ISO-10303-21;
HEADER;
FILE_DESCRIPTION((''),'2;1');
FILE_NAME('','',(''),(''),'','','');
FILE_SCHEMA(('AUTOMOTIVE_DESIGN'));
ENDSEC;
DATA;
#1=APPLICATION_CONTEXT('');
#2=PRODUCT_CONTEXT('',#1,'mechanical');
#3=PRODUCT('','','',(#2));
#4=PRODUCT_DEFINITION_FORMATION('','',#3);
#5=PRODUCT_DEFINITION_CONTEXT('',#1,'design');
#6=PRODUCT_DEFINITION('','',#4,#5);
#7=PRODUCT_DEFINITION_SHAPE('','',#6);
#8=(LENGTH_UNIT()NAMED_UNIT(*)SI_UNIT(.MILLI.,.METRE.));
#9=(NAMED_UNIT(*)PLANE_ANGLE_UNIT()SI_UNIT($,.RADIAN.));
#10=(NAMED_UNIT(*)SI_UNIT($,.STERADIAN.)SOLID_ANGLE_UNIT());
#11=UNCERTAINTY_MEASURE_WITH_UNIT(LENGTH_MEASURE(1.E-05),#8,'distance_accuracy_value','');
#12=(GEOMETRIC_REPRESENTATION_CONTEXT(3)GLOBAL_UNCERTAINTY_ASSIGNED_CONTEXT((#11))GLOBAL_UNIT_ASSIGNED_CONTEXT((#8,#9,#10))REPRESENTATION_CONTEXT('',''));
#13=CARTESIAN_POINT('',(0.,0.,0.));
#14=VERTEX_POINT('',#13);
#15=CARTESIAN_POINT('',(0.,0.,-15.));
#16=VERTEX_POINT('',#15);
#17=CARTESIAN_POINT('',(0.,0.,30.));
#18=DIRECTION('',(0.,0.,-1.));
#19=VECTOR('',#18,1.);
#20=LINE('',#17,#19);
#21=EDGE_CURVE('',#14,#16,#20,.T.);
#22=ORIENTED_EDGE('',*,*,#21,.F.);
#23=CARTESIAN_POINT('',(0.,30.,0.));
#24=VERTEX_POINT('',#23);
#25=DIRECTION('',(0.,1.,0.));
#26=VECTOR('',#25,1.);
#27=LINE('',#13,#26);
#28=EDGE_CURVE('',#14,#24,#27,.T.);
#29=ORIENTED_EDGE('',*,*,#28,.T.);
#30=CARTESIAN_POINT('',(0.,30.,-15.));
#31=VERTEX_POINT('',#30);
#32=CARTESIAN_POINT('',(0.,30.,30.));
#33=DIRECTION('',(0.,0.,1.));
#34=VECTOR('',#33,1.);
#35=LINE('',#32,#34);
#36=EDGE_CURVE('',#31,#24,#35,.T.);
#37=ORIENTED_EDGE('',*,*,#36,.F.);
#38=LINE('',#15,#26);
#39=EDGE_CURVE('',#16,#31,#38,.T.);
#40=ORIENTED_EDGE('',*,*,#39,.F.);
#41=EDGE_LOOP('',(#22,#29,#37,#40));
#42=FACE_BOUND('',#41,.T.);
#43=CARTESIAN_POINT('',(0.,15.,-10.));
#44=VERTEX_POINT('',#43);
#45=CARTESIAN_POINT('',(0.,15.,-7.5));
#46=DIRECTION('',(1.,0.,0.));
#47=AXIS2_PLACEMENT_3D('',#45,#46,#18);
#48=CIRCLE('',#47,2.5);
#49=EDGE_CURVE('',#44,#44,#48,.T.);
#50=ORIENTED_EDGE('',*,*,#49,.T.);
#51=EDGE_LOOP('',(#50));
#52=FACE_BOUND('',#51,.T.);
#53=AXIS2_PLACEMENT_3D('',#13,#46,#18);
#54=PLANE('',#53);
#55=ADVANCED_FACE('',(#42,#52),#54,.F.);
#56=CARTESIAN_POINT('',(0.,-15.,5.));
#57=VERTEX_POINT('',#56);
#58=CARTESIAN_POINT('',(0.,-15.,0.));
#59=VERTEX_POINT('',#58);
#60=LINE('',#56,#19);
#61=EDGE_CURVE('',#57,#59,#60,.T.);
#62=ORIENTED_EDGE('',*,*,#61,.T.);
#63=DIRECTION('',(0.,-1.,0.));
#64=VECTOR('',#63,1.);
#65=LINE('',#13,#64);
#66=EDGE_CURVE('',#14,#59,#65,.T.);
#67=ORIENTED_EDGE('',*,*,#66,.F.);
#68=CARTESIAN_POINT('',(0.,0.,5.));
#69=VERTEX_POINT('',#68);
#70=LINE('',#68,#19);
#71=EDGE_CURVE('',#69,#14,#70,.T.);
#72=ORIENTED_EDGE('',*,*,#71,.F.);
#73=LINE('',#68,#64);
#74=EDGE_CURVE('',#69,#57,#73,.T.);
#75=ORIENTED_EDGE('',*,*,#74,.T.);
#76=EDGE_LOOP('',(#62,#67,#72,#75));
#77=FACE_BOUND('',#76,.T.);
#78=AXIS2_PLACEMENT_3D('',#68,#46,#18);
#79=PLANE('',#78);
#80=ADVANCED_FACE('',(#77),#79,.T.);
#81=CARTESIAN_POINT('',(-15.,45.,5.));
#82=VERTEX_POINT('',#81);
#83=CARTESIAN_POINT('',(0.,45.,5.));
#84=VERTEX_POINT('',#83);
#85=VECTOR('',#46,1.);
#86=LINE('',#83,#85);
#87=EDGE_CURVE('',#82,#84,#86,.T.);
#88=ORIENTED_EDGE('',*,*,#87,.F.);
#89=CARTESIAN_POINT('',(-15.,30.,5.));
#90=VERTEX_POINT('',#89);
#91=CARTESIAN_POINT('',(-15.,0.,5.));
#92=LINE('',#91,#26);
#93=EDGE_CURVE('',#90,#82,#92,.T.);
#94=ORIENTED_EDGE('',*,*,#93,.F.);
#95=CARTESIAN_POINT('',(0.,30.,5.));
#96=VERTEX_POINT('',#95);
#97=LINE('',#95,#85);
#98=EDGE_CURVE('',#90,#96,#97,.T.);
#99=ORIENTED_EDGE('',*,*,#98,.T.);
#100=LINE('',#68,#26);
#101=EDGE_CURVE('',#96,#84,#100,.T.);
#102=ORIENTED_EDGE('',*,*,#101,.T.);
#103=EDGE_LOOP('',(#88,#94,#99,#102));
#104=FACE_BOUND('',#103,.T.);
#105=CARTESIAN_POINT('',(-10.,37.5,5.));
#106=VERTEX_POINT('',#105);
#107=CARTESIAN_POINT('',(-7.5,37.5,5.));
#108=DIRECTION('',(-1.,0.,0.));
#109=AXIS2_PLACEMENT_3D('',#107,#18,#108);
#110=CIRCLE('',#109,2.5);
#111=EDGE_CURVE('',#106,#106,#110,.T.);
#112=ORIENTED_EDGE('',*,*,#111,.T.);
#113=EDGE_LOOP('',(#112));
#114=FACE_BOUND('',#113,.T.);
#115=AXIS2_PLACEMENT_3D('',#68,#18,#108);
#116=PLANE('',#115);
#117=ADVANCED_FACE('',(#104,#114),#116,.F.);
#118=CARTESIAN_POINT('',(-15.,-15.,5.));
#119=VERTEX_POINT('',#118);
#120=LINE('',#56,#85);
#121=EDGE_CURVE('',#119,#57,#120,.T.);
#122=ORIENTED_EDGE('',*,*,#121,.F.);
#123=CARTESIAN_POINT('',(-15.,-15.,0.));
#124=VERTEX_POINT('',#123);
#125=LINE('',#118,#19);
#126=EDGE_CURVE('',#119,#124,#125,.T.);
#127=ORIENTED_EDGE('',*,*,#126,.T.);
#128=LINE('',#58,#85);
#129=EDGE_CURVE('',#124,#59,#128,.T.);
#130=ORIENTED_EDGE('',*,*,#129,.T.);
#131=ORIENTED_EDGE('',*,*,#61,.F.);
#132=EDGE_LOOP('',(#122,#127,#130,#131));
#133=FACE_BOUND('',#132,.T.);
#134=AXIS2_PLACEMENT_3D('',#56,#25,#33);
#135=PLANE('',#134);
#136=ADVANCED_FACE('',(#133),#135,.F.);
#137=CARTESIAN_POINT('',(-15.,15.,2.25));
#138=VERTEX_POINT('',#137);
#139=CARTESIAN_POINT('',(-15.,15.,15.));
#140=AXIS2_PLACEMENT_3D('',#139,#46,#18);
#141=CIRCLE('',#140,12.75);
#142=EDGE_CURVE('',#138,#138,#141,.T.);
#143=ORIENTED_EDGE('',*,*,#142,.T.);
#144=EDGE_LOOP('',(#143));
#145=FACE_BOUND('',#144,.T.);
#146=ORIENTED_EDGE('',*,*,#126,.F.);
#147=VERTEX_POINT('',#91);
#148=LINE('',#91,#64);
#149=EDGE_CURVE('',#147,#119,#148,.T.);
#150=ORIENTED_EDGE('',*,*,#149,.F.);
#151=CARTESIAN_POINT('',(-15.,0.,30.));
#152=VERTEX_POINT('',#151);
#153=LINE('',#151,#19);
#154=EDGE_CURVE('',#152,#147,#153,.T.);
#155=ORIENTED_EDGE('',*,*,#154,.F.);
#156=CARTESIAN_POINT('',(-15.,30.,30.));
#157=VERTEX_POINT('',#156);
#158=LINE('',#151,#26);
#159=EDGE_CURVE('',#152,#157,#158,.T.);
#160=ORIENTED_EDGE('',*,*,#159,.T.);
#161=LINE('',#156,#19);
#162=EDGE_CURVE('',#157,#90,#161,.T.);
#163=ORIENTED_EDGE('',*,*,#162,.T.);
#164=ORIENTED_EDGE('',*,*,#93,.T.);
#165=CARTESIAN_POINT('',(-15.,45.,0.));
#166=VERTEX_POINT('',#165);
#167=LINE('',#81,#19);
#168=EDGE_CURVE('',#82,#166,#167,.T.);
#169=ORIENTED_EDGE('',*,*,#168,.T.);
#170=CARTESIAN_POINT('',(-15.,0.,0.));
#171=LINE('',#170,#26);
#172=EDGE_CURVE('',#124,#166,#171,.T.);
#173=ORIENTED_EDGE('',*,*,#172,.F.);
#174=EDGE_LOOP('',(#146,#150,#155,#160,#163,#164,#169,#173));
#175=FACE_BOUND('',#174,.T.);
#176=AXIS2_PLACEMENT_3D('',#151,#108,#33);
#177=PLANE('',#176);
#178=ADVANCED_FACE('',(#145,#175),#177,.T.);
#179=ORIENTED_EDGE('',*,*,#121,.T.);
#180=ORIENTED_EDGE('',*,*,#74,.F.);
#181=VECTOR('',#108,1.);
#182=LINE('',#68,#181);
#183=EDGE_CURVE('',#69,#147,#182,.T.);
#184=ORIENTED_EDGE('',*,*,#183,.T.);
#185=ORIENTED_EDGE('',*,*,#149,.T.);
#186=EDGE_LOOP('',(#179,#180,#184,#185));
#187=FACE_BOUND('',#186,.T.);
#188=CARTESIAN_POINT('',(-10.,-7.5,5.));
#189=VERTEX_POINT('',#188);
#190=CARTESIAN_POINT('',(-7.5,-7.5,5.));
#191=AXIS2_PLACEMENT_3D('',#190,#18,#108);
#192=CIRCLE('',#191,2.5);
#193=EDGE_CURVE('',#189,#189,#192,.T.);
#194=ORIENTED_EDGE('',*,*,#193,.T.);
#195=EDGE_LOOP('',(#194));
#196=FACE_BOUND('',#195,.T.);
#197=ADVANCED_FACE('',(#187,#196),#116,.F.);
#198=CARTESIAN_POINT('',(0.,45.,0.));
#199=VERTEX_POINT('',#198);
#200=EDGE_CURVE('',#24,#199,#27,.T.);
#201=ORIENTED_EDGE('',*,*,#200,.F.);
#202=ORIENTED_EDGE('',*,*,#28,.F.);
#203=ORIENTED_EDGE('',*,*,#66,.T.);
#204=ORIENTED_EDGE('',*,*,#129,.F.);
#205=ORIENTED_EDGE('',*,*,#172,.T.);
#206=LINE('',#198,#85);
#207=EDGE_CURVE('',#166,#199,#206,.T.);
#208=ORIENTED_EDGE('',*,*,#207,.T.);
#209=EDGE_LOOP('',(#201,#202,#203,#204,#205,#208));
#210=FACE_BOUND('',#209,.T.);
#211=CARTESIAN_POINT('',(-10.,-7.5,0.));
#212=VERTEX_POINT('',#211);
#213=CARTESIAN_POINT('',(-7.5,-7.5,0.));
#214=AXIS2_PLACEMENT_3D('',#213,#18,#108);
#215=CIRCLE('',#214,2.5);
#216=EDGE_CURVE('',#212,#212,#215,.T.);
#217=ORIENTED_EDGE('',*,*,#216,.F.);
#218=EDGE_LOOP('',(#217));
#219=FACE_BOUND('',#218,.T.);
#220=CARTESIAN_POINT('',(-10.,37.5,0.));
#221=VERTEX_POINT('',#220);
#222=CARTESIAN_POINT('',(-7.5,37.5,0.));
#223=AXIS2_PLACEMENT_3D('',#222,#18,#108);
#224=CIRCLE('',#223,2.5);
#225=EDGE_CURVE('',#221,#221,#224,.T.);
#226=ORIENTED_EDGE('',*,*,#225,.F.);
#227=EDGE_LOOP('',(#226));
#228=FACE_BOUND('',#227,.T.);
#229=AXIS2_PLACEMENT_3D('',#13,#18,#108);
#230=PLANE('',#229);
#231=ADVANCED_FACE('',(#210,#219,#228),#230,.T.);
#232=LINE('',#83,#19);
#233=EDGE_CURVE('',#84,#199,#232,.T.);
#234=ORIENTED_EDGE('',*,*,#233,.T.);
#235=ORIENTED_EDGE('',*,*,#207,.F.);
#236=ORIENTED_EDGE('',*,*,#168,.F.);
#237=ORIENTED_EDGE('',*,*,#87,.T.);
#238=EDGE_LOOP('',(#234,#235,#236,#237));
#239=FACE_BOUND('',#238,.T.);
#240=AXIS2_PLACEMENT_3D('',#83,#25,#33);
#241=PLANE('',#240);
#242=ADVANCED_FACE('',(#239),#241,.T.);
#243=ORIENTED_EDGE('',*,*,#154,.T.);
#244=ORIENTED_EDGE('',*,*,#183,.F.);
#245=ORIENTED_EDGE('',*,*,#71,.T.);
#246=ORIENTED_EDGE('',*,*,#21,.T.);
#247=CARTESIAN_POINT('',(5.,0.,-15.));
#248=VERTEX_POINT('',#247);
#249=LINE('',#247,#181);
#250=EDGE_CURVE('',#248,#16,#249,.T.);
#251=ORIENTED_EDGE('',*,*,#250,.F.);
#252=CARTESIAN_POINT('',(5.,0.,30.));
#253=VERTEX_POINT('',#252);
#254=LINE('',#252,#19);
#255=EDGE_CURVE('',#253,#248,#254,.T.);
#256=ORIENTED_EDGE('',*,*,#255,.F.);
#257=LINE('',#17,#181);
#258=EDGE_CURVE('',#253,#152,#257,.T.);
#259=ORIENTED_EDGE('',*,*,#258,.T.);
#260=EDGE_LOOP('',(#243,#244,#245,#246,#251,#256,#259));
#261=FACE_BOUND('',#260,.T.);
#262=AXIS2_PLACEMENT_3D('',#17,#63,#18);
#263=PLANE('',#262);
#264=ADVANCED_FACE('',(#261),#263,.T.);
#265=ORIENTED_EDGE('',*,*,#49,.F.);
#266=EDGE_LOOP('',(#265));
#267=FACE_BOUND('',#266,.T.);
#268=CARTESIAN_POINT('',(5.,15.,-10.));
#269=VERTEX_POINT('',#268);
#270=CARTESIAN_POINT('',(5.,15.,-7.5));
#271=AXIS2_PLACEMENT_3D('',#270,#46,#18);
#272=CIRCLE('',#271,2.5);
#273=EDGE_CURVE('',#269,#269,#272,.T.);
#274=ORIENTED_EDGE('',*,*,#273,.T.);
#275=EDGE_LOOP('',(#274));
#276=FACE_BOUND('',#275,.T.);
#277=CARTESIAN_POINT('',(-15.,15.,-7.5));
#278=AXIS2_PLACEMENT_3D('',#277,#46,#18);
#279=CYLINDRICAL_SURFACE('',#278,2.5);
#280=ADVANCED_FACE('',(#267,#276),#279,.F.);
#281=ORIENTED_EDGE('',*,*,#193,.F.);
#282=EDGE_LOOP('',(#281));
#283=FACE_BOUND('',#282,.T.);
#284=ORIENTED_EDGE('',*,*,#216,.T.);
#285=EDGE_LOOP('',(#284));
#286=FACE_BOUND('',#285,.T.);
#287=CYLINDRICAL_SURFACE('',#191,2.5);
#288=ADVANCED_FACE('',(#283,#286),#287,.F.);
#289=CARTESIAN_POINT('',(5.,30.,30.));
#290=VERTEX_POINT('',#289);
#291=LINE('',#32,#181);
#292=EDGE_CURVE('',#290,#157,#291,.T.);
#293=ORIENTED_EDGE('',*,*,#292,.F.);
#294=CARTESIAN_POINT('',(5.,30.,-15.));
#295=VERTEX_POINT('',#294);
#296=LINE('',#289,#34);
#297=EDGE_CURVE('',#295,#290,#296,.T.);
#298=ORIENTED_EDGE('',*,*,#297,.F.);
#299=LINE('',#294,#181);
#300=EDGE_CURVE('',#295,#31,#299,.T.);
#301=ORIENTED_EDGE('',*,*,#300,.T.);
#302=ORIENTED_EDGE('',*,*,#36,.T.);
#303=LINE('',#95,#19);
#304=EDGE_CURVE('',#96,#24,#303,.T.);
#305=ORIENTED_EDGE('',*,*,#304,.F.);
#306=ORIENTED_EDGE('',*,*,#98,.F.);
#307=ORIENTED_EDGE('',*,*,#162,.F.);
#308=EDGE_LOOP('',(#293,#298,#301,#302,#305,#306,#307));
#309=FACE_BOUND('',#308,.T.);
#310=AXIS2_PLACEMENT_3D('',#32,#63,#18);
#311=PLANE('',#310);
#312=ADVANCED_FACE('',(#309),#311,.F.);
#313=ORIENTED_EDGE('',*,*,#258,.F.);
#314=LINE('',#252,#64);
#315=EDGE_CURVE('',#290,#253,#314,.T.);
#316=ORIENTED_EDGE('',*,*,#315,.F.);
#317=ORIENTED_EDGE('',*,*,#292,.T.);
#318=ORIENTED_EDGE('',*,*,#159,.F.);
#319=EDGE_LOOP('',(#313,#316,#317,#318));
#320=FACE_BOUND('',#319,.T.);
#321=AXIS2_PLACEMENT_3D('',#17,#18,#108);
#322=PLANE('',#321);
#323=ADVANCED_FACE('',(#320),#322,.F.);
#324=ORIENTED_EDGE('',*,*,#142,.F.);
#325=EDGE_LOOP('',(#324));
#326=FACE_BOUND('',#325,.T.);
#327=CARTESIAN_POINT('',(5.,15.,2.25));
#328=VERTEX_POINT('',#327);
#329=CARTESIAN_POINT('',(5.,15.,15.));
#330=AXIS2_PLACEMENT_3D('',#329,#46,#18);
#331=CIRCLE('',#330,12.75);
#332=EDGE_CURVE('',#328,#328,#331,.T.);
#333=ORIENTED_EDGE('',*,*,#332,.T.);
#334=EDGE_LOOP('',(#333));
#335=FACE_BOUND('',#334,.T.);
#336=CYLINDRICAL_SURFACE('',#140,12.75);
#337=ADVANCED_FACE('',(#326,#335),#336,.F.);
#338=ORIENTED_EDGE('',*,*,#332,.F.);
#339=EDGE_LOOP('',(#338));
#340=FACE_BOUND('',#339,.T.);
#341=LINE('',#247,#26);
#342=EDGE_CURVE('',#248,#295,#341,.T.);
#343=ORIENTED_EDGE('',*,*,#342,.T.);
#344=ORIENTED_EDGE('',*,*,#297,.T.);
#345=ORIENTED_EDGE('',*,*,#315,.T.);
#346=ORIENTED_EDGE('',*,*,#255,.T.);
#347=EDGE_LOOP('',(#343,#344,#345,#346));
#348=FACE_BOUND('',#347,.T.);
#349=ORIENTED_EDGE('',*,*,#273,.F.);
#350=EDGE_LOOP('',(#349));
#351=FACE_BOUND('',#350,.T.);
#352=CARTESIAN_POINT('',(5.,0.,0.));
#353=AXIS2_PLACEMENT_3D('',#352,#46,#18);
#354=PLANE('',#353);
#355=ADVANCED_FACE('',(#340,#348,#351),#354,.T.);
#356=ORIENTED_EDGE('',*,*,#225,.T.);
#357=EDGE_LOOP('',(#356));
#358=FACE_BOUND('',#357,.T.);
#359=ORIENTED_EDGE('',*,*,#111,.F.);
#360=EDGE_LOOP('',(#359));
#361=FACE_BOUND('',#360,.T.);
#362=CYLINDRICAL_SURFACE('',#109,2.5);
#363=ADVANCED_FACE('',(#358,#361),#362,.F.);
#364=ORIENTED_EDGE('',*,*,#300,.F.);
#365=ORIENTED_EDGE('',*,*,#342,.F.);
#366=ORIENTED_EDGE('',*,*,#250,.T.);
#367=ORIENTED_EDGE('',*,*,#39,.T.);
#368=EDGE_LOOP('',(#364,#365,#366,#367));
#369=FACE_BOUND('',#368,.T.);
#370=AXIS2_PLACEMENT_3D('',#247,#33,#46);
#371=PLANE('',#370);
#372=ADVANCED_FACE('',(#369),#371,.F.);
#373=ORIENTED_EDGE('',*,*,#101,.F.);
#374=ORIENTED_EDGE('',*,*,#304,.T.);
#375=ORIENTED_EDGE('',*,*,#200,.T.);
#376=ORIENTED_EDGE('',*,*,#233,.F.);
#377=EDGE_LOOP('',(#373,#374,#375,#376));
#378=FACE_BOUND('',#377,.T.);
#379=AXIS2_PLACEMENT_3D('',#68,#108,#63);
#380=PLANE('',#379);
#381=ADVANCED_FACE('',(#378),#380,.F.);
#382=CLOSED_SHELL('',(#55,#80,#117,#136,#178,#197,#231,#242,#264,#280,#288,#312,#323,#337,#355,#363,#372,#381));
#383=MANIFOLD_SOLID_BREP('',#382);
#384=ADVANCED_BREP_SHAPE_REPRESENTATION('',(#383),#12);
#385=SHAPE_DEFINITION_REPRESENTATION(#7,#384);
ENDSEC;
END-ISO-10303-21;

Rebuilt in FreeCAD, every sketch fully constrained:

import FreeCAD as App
import Part
import Sketcher

doc = App.newDocument("Part")
params = doc.addObject("Spreadsheet::Sheet", "Params")
for row, (alias, value) in enumerate([
    ("sketch1_width", "15 mm"),
    ("sketch1_height", "30 mm"),
    ("pad1_length", "30 mm"),
    ("sketch2_width", "30 mm"),
    ("sketch2_height", "45 mm"),
    ("pad2_length", "5 mm"),
    ("sketch3_diameter", "5 mm"),
    ("sketch4_diameter", "25.5 mm"),
    ("sketch5_diameter", "5 mm"),
    ("sketch5_width", "15 mm"),
    ("pad3_length", "5 mm"),
], start=1):
    params.set(f"A{row}", alias)
    params.set(f"B{row}", "=" + value)
    params.setAlias(f"B{row}", alias)

body = doc.addObject("PartDesign::Body", "Body")

# Sketch on XY plane
sketch1 = doc.addObject("Sketcher::SketchObject", "Sketch")
body.addObject(sketch1)
sketch1.AttachmentSupport = (doc.XY_Plane, [""])
sketch1.MapMode = "FlatFace"
sketch1.addGeometry([
    Part.LineSegment(App.Vector(-15, 0, 0), App.Vector(0, 0, 0)),
    Part.LineSegment(App.Vector(0, 0, 0), App.Vector(0, 30, 0)),
    Part.LineSegment(App.Vector(0, 30, 0), App.Vector(-15, 30, 0)),
    Part.LineSegment(App.Vector(-15, 30, 0), App.Vector(-15, 0, 0)),
], False)
sketch1.addConstraint([
    Sketcher.Constraint("Coincident", 0, 2, 1, 1),
    Sketcher.Constraint("Coincident", 1, 2, 2, 1),
    Sketcher.Constraint("Coincident", 2, 2, 3, 1),
    Sketcher.Constraint("Coincident", 3, 2, 0, 1),
    Sketcher.Constraint("Horizontal", 0),
    Sketcher.Constraint("Vertical", 1),
    Sketcher.Constraint("Horizontal", 2),
    Sketcher.Constraint("Vertical", 3),
    Sketcher.Constraint("Coincident", 0, 2, -1, 1),
    Sketcher.Constraint("DistanceX", 0, 1, 0, 2, 15.0),
    Sketcher.Constraint("DistanceY", 1, 1, 1, 2, 30.0),
])
sketch1.setExpression("Constraints[9]", "Params.sketch1_width")
sketch1.setExpression("Constraints[10]", "Params.sketch1_height")
pad1 = doc.addObject("PartDesign::Pad", "Pad")
body.addObject(pad1)
pad1.Profile = sketch1
pad1.setExpression("Length", "Params.pad1_length")

# Sketch on YZ plane
sketch2 = doc.addObject("Sketcher::SketchObject", "Sketch001")
body.addObject(sketch2)
sketch2.AttachmentSupport = (doc.YZ_Plane, [""])
sketch2.MapMode = "FlatFace"
sketch2.addGeometry([
    Part.LineSegment(App.Vector(0, 30, 0), App.Vector(0, -15, 0)),
    Part.LineSegment(App.Vector(0, -15, 0), App.Vector(30, -15, 0)),
    Part.LineSegment(App.Vector(30, -15, 0), App.Vector(30, 30, 0)),
    Part.LineSegment(App.Vector(30, 30, 0), App.Vector(0, 30, 0)),
], False)
sketch2.addConstraint([
    Sketcher.Constraint("Coincident", 0, 2, 1, 1),
    Sketcher.Constraint("Coincident", 1, 2, 2, 1),
    Sketcher.Constraint("Coincident", 2, 2, 3, 1),
    Sketcher.Constraint("Coincident", 3, 2, 0, 1),
    Sketcher.Constraint("Vertical", 0),
    Sketcher.Constraint("Horizontal", 1),
    Sketcher.Constraint("Vertical", 2),
    Sketcher.Constraint("Horizontal", 3),
    Sketcher.Constraint("PointOnObject", 0, 2, -2),
    Sketcher.Constraint("DistanceX", 1, 1, 1, 2, 30.0),
    Sketcher.Constraint("DistanceY", 0, 2, 0, 1, 45.0),
    Sketcher.Constraint("DistanceY", 0, 2, -1, 1, 15.0),
])
sketch2.setExpression("Constraints[9]", "Params.sketch2_width")
sketch2.setExpression("Constraints[10]", "Params.sketch2_height")
pad2 = doc.addObject("PartDesign::Pad", "Pad001")
body.addObject(pad2)
pad2.Profile = sketch2
pad2.setExpression("Length", "Params.pad2_length")

# Sketch on YZ plane
sketch3 = doc.addObject("Sketcher::SketchObject", "Sketch002")
body.addObject(sketch3)
sketch3.AttachmentSupport = (doc.YZ_Plane, [""])
sketch3.MapMode = "FlatFace"
sketch3.AttachmentOffset = App.Placement(App.Vector(0, 0, 5), App.Rotation())
sketch3.addGeometry(Part.Circle(App.Vector(15, -7.5, 0), App.Vector(0, 0, 1), 2.5), False)
sketch3.addConstraint([
    Sketcher.Constraint("Diameter", 0, 5.0),
    Sketcher.Constraint("DistanceX", -1, 1, 0, 3, 15.0),
    Sketcher.Constraint("DistanceY", 0, 3, -1, 1, 7.5),
])
sketch3.setExpression("Constraints[0]", "Params.sketch3_diameter")
pocket1 = doc.addObject("PartDesign::Pocket", "Pocket")
body.addObject(pocket1)
pocket1.Profile = sketch3
pocket1.Type = "ThroughAll"

# Sketch on YZ plane
sketch4 = doc.addObject("Sketcher::SketchObject", "Sketch003")
body.addObject(sketch4)
sketch4.AttachmentSupport = (doc.YZ_Plane, [""])
sketch4.MapMode = "FlatFace"
sketch4.AttachmentOffset = App.Placement(App.Vector(0, 0, 5), App.Rotation())
sketch4.addGeometry(Part.Circle(App.Vector(15, 15, 0), App.Vector(0, 0, 1), 13), False)
sketch4.addConstraint([
    Sketcher.Constraint("Diameter", 0, 25.5),
    Sketcher.Constraint("DistanceX", -1, 1, 0, 3, 15.0),
    Sketcher.Constraint("DistanceY", -1, 1, 0, 3, 15.0),
])
sketch4.setExpression("Constraints[0]", "Params.sketch4_diameter")
pocket2 = doc.addObject("PartDesign::Pocket", "Pocket001")
body.addObject(pocket2)
pocket2.Profile = sketch4
pocket2.Type = "ThroughAll"

# Sketch on XY plane
sketch5 = doc.addObject("Sketcher::SketchObject", "Sketch004")
body.addObject(sketch5)
sketch5.AttachmentSupport = (doc.XY_Plane, [""])
sketch5.MapMode = "FlatFace"
sketch5.addGeometry([
    Part.LineSegment(App.Vector(-15, 30, 0), App.Vector(-15, 45, 0)),  # 0
    Part.LineSegment(App.Vector(-15, 45, 0), App.Vector(0, 45, 0)),  # 1
    Part.LineSegment(App.Vector(0, 45, 0), App.Vector(0, 30, 0)),  # 2
    Part.LineSegment(App.Vector(0, 30, 0), App.Vector(-15, 30, 0)),  # 3
    Part.Circle(App.Vector(-7.5, 37.5, 0), App.Vector(0, 0, 1), 2.5),  # 4
    Part.LineSegment(App.Vector(-15, -15, 0), App.Vector(-15, 0, 0)),  # 5
    Part.LineSegment(App.Vector(-15, 0, 0), App.Vector(0, 0, 0)),  # 6
    Part.LineSegment(App.Vector(0, 0, 0), App.Vector(0, -15, 0)),  # 7
    Part.LineSegment(App.Vector(0, -15, 0), App.Vector(-15, -15, 0)),  # 8
    Part.Circle(App.Vector(-7.5, -7.5, 0), App.Vector(0, 0, 1), 2.5),  # 9
], False)
sketch5.addConstraint([
    Sketcher.Constraint("Coincident", 0, 2, 1, 1),
    Sketcher.Constraint("Coincident", 1, 2, 2, 1),
    Sketcher.Constraint("Coincident", 2, 2, 3, 1),
    Sketcher.Constraint("Coincident", 3, 2, 0, 1),
    Sketcher.Constraint("Coincident", 5, 2, 6, 1),
    Sketcher.Constraint("Coincident", 6, 2, 7, 1),
    Sketcher.Constraint("Coincident", 7, 2, 8, 1),
    Sketcher.Constraint("Coincident", 8, 2, 5, 1),
    Sketcher.Constraint("Vertical", 0),
    Sketcher.Constraint("Horizontal", 1),
    Sketcher.Constraint("Vertical", 2),
    Sketcher.Constraint("Horizontal", 3),
    Sketcher.Constraint("Vertical", 5),
    Sketcher.Constraint("Horizontal", 6),
    Sketcher.Constraint("Vertical", 7),
    Sketcher.Constraint("Horizontal", 8),
    Sketcher.Constraint("Coincident", 6, 2, -1, 1),
    Sketcher.Constraint("Equal", 4, 9),
    Sketcher.Constraint("PointOnObject", 1, 2, -2),
    Sketcher.Constraint("Vertical", 4, 3, 9, 3),
    Sketcher.Constraint("Vertical", 3, 2, 5, 2),
    Sketcher.Constraint("Equal", 8, 0),
    Sketcher.Constraint("Equal", 2, 5),
    Sketcher.Constraint("Diameter", 4, 5.0),
    Sketcher.Constraint("DistanceX", 1, 1, 1, 2, 15.0),
    Sketcher.Constraint("DistanceY", -1, 1, 0, 2, 45.0),
    Sketcher.Constraint("DistanceY", 9, 3, 4, 3, 45.0),
    Sketcher.Constraint("DistanceX", 4, 3, -1, 1, 7.5),
    Sketcher.Constraint("DistanceY", -1, 1, 4, 3, 37.5),
])
sketch5.setExpression("Constraints[23]", "Params.sketch5_diameter")
sketch5.setExpression("Constraints[24]", "Params.sketch5_width")
pad3 = doc.addObject("PartDesign::Pad", "Pad002")
body.addObject(pad3)
pad3.Profile = sketch5
pad3.setExpression("Length", "Params.pad3_length")

doc.recompute()
